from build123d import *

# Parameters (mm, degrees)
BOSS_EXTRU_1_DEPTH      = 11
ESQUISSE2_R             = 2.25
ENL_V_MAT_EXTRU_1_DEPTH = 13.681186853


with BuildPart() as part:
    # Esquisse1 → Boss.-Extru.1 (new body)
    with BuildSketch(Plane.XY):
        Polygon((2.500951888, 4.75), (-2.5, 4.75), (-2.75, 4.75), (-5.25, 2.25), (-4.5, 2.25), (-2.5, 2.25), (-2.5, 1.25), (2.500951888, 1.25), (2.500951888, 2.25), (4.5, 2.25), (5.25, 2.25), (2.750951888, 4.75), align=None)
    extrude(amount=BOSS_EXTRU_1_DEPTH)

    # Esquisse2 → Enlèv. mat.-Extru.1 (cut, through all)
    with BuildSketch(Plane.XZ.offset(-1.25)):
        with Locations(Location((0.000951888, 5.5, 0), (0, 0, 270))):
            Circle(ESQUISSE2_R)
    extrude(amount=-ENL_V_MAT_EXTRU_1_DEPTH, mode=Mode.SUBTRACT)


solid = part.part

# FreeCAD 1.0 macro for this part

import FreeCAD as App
import Part
import Sketcher
from FreeCAD import Vector
Q = App.Units.Quantity


def add_polygon(sketch, points):
    """Adds a closed chain of lines whose ends are joined by coincident constraints."""
    first, n = sketch.GeometryCount, len(points)
    for a, b in zip(points, points[1:] + points[:1]):
        sketch.addGeometry(Part.LineSegment(App.Vector(*a, 0), App.Vector(*b, 0)), False)
    for i in range(n):
        sketch.addConstraint(Sketcher.Constraint("Coincident", first + i, 2, first + (i + 1) % n, 1))

doc = App.newDocument("Part")
body = doc.addObject("PartDesign::Body", "Body")

# Sketch on XY plane
sketch1 = body.newObject("Sketcher::SketchObject", "Sketch")
sketch1.AttachmentSupport = (doc.getObject("XY_Plane"), [""])
sketch1.MapMode = "FlatFace"
add_polygon(sketch1, [(-2.8, 4.8), (-5.2, 2.2), (-2.5, 2.2), (-2.5, 1.2), (2.5, 1.2), (2.5, 2.2), (5.2, 2.2), (2.8, 4.8)])  # lines 0-7
sketch1.addConstraint([
    Sketcher.Constraint("Horizontal", 1),
    Sketcher.Constraint("Vertical", 2),
    Sketcher.Constraint("Horizontal", 3),
    Sketcher.Constraint("Vertical", 4),
    Sketcher.Constraint("Horizontal", 5),
    Sketcher.Constraint("Horizontal", 7),
    Sketcher.Constraint("Symmetric", 0, 2, 5, 2, -2),
    Sketcher.Constraint("DistanceY", 2, 2, 2, 1, 1.0),
    Sketcher.Constraint("Angle", 0, Q("-135 deg")),
    Sketcher.Constraint("DistanceX", 1, 1, 1, 2, 2.75),
    Sketcher.Constraint("DistanceX", 1, 2, -1, 1, 2.5),
    Sketcher.Constraint("DistanceY", 4, 2, 6, 2, 2.5),
    Sketcher.Constraint("DistanceY", -1, 1, 0, 2, 2.25),
    Sketcher.Constraint("DistanceX", 4, 2, 6, 2, 0.25),
    Sketcher.Constraint("DistanceX", 3, 1, 3, 2, 5.000952),
])
pad1 = body.newObject("PartDesign::Pad", "Pad")
pad1.Profile = sketch1
pad1.Length = 11

# Sketch on XZ plane
sketch2 = body.newObject("Sketcher::SketchObject", "Sketch001")
sketch2.AttachmentSupport = (doc.getObject("XZ_Plane"), [""])
sketch2.MapMode = "FlatFace"
sketch2.AttachmentOffset = App.Placement(Vector(0, 0, -1.25), App.Rotation())
sketch2.addGeometry(Part.Circle(Vector(0, 5.5, 0), Vector(0, 0, 1), 2.2), False)
sketch2.addConstraint([
    Sketcher.Constraint("Diameter", 0, 4.5),
    Sketcher.Constraint("DistanceY", -1, 1, 0, 3, 5.5),
    Sketcher.Constraint("DistanceX", -1, 1, 0, 3, 0.000952),
])
pocket1 = body.newObject("PartDesign::Pocket", "Pocket")
pocket1.Profile = sketch2
pocket1.Type = "ThroughAll"

doc.recompute()
